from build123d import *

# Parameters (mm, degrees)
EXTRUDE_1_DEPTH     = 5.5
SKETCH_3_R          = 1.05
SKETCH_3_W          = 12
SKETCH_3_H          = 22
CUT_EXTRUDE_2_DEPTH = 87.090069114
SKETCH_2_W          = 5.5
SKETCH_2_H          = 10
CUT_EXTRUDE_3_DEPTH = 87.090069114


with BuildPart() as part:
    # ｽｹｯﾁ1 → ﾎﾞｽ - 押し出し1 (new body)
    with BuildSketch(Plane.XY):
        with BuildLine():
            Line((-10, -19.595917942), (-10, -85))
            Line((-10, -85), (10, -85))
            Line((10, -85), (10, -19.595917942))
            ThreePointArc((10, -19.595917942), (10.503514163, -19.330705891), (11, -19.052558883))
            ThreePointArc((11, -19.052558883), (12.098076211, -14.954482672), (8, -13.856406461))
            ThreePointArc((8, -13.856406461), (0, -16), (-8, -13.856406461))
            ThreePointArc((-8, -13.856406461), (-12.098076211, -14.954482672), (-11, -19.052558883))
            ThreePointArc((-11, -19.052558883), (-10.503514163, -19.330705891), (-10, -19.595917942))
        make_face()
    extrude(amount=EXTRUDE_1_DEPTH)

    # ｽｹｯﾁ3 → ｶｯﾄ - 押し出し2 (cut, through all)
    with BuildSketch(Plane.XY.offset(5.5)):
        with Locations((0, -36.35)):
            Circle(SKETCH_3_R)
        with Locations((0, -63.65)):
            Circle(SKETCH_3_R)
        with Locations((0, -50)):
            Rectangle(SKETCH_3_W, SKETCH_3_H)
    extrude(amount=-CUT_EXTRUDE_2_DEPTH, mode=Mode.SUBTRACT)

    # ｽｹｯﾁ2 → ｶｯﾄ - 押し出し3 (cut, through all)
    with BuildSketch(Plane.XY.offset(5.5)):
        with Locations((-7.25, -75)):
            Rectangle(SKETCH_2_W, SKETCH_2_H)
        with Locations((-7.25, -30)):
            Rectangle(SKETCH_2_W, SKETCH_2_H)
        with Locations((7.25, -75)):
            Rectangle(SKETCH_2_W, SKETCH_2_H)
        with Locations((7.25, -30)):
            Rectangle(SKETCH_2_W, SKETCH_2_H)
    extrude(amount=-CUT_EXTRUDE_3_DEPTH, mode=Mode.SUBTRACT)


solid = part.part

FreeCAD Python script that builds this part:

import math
import FreeCAD as App
import Part
import Sketcher
Q = App.Units.Quantity

doc = App.newDocument("Part")
body = doc.addObject("PartDesign::Body", "Body")

# Sketch on XY plane
sketch1 = body.newObject("Sketcher::SketchObject", "Sketch")
sketch1.AttachmentSupport = (doc.getObject("XY_Plane"), [""])
sketch1.MapMode = "FlatFace"
sketch1.addGeometry([
    Part.LineSegment(App.Vector(-10, -19.595918, 0), App.Vector(-10, -85, 0)),  # 0
    Part.LineSegment(App.Vector(-10, -85, 0), App.Vector(10, -85, 0)),  # 1
    Part.LineSegment(App.Vector(10, -85, 0), App.Vector(10, -19.595918, 0)),  # 2
    Part.ArcOfCircle(Part.Circle(App.Vector(0.000001, -0.000002, 0), App.Vector(0, 0, 1), 21.999998), math.radians(-62.964308), math.radians(-60)),  # 3
    Part.ArcOfCircle(Part.Circle(App.Vector(9.5, -16.454483, 0), App.Vector(0, 0, 1), 3), math.radians(-60), math.radians(120)),  # 4
    Part.ArcOfCircle(Part.Circle(App.Vector(0, 0, 0), App.Vector(0, 0, 1), 16), math.radians(-120), math.radians(-60)),  # 5
    Part.ArcOfCircle(Part.Circle(App.Vector(-9.5, -16.454483, 0), App.Vector(0, 0, 1), 3), math.radians(60), math.radians(240)),  # 6
    Part.ArcOfCircle(Part.Circle(App.Vector(-0.000001, -0.000002, 0), App.Vector(0, 0, 1), 21.999998), math.radians(-120), math.radians(-117.035692)),  # 7
], False)
sketch1.addConstraint([
    Sketcher.Constraint("Coincident", 0, 2, 1, 1),
    Sketcher.Constraint("Coincident", 1, 2, 2, 1),
    Sketcher.Constraint("Coincident", 2, 2, 3, 1),
    Sketcher.Constraint("Tangent", 3, 2, 4, 1),
    Sketcher.Constraint("Tangent", 4, 2, 5, 2),
    Sketcher.Constraint("Tangent", 5, 1, 6, 1),
    Sketcher.Constraint("Tangent", 6, 2, 7, 1),
    Sketcher.Constraint("Coincident", 7, 2, 0, 1),
    Sketcher.Constraint("Vertical", 0),
    Sketcher.Constraint("Horizontal", 1),
    Sketcher.Constraint("Vertical", 2),
    Sketcher.Constraint("Coincident", 3, 3, -1, 1),
    Sketcher.Constraint("Coincident", 5, 3, -1, 1),
    Sketcher.Constraint("Coincident", 7, 3, -1, 1),
    Sketcher.Constraint("Equal", 4, 6),
    Sketcher.Constraint("Horizontal", 4, 3, 6, 3),
    Sketcher.Constraint("Horizontal", 2, 2, 7, 2),
    Sketcher.Constraint("Radius", 3, Q("21.999998 mm")),
    Sketcher.Constraint("Radius", 4, Q("3 mm")),
    Sketcher.Constraint("DistanceX", 1, 1, 1, 2, Q("20 mm")),
    Sketcher.Constraint("DistanceY", 0, 2, -1, 1, Q("85 mm")),
    Sketcher.Constraint("DistanceX", -1, 1, 3, 2, Q("11 mm")),
])
pad1 = body.newObject("PartDesign::Pad", "Pad")
pad1.Profile = sketch1
pad1.Length = 5.5

# Sketch on XY plane
sketch2 = body.newObject("Sketcher::SketchObject", "Sketch001")
sketch2.AttachmentSupport = (doc.getObject("XY_Plane"), [""])
sketch2.MapMode = "FlatFace"
sketch2.AttachmentOffset = App.Placement(App.Vector(0, 0, 5.5), App.Rotation())
sketch2.addGeometry([
    Part.Circle(App.Vector(0, -36.35, 0), App.Vector(0, 0, 1), 1.05),  # 0
    Part.Circle(App.Vector(0, -63.65, 0), App.Vector(0, 0, 1), 1.05),  # 1
    Part.LineSegment(App.Vector(-6, -39, 0), App.Vector(-6, -61, 0)),  # 2
    Part.LineSegment(App.Vector(-6, -61, 0), App.Vector(6, -61, 0)),  # 3
    Part.LineSegment(App.Vector(6, -61, 0), App.Vector(6, -39, 0)),  # 4
    Part.LineSegment(App.Vector(6, -39, 0), App.Vector(-6, -39, 0)),  # 5
], False)
sketch2.addConstraint([
    Sketcher.Constraint("Coincident", 2, 2, 3, 1),
    Sketcher.Constraint("Coincident", 3, 2, 4, 1),
    Sketcher.Constraint("Coincident", 4, 2, 5, 1),
    Sketcher.Constraint("Coincident", 5, 2, 2, 1),
    Sketcher.Constraint("Vertical", 2),
    Sketcher.Constraint("Horizontal", 3),
    Sketcher.Constraint("Vertical", 4),
    Sketcher.Constraint("Horizontal", 5),
    Sketcher.Constraint("Equal", 0, 1),
    Sketcher.Constraint("PointOnObject", 0, 3, -2),
    Sketcher.Constraint("PointOnObject", 1, 3, -2),
    Sketcher.Constraint("Diameter", 0, Q("2.1 mm")),
    Sketcher.Constraint("DistanceX", 3, 1, 3, 2, Q("12 mm")),
    Sketcher.Constraint("DistanceY", 2, 2, 2, 1, Q("22 mm")),
    Sketcher.Constraint("DistanceX", 2, 2, -1, 1, Q("6 mm")),
    Sketcher.Constraint("DistanceY", 2, 2, -1, 1, Q("61 mm")),
    Sketcher.Constraint("DistanceY", 1, 3, 0, 3, Q("27.3 mm")),
    Sketcher.Constraint("DistanceY", 0, 3, -1, 1, Q("36.35 mm")),
])
pocket1 = body.newObject("PartDesign::Pocket", "Pocket")
pocket1.Profile = sketch2
pocket1.Type = "ThroughAll"

# Sketch on XY plane
sketch3 = body.newObject("Sketcher::SketchObject", "Sketch002")
sketch3.AttachmentSupport = (doc.getObject("XY_Plane"), [""])
sketch3.MapMode = "FlatFace"
sketch3.AttachmentOffset = App.Placement(App.Vector(0, 0, 5.5), App.Rotation())
sketch3.addGeometry([
    Part.LineSegment(App.Vector(-10, -70, 0), App.Vector(-10, -80, 0)),  # 0
    Part.LineSegment(App.Vector(-10, -80, 0), App.Vector(-4.5, -80, 0)),  # 1
    Part.LineSegment(App.Vector(-4.5, -80, 0), App.Vector(-4.5, -70, 0)),  # 2
    Part.LineSegment(App.Vector(-4.5, -70, 0), App.Vector(-10, -70, 0)),  # 3
    Part.LineSegment(App.Vector(-10, -25, 0), App.Vector(-10, -35, 0)),  # 4
    Part.LineSegment(App.Vector(-10, -35, 0), App.Vector(-4.5, -35, 0)),  # 5
    Part.LineSegment(App.Vector(-4.5, -35, 0), App.Vector(-4.5, -25, 0)),  # 6
    Part.LineSegment(App.Vector(-4.5, -25, 0), App.Vector(-10, -25, 0)),  # 7
    Part.LineSegment(App.Vector(4.5, -70, 0), App.Vector(4.5, -80, 0)),  # 8
    Part.LineSegment(App.Vector(4.5, -80, 0), App.Vector(10, -80, 0)),  # 9
    Part.LineSegment(App.Vector(10, -80, 0), App.Vector(10, -70, 0)),  # 10
    Part.LineSegment(App.Vector(10, -70, 0), App.Vector(4.5, -70, 0)),  # 11
    Part.LineSegment(App.Vector(4.5, -25, 0), App.Vector(4.5, -35, 0)),  # 12
    Part.LineSegment(App.Vector(4.5, -35, 0), App.Vector(10, -35, 0)),  # 13
    Part.LineSegment(App.Vector(10, -35, 0), App.Vector(10, -25, 0)),  # 14
    Part.LineSegment(App.Vector(10, -25, 0), App.Vector(4.5, -25, 0)),  # 15
], False)
sketch3.addConstraint([
    Sketcher.Constraint("Coincident", 0, 2, 1, 1),
    Sketcher.Constraint("Coincident", 1, 2, 2, 1),
    Sketcher.Constraint("Coincident", 2, 2, 3, 1),
    Sketcher.Constraint("Coincident", 3, 2, 0, 1),
    Sketcher.Constraint("Coincident", 4, 2, 5, 1),
    Sketcher.Constraint("Coincident", 5, 2, 6, 1),
    Sketcher.Constraint("Coincident", 6, 2, 7, 1),
    Sketcher.Constraint("Coincident", 7, 2, 4, 1),
    Sketcher.Constraint("Coincident", 8, 2, 9, 1),
    Sketcher.Constraint("Coincident", 9, 2, 10, 1),
    Sketcher.Constraint("Coincident", 10, 2, 11, 1),
    Sketcher.Constraint("Coincident", 11, 2, 8, 1),
    Sketcher.Constraint("Coincident", 12, 2, 13, 1),
    Sketcher.Constraint("Coincident", 13, 2, 14, 1),
    Sketcher.Constraint("Coincident", 14, 2, 15, 1),
    Sketcher.Constraint("Coincident", 15, 2, 12, 1),
    Sketcher.Constraint("Vertical", 0),
    Sketcher.Constraint("Horizontal", 1),
    Sketcher.Constraint("Vertical", 2),
    Sketcher.Constraint("Horizontal", 3),
    Sketcher.Constraint("Vertical", 4),
    Sketcher.Constraint("Horizontal", 5),
    Sketcher.Constraint("Vertical", 6),
    Sketcher.Constraint("Horizontal", 7),
    Sketcher.Constraint("Vertical", 8),
    Sketcher.Constraint("Horizontal", 9),
    Sketcher.Constraint("Vertical", 10),
    Sketcher.Constraint("Horizontal", 11),
    Sketcher.Constraint("Vertical", 12),
    Sketcher.Constraint("Horizontal", 13),
    Sketcher.Constraint("Vertical", 14),
    Sketcher.Constraint("Horizontal", 15),
    Sketcher.Constraint("Symmetric", 1, 2, 8, 2, -2),
    Sketcher.Constraint("Symmetric", 3, 2, 10, 2, -2),
    Sketcher.Constraint("Symmetric", 5, 2, 12, 2, -2),
    Sketcher.Constraint("Symmetric", 7, 2, 14, 2, -2),
    Sketcher.Constraint("Vertical", 3, 2, 4, 2),
    Sketcher.Constraint("Vertical", 2, 2, 5, 2),
    Sketcher.Constraint("Equal", 2, 4),
    Sketcher.Constraint("DistanceY", 0, 2, 0, 1, Q("10 mm")),
    Sketcher.Constraint("DistanceX", 1, 1, 1, 2, Q("5.5 mm")),
    Sketcher.Constraint("DistanceX", 0, 2, -1, 1, Q("10 mm")),
    Sketcher.Constraint("DistanceY", 0, 2, -1, 1, Q("80 mm")),
    Sketcher.Constraint("DistanceY", 4, 2, -1, 1, Q("35 mm")),
])
pocket2 = body.newObject("PartDesign::Pocket", "Pocket001")
pocket2.Profile = sketch3
pocket2.Type = "ThroughAll"

doc.recompute()
